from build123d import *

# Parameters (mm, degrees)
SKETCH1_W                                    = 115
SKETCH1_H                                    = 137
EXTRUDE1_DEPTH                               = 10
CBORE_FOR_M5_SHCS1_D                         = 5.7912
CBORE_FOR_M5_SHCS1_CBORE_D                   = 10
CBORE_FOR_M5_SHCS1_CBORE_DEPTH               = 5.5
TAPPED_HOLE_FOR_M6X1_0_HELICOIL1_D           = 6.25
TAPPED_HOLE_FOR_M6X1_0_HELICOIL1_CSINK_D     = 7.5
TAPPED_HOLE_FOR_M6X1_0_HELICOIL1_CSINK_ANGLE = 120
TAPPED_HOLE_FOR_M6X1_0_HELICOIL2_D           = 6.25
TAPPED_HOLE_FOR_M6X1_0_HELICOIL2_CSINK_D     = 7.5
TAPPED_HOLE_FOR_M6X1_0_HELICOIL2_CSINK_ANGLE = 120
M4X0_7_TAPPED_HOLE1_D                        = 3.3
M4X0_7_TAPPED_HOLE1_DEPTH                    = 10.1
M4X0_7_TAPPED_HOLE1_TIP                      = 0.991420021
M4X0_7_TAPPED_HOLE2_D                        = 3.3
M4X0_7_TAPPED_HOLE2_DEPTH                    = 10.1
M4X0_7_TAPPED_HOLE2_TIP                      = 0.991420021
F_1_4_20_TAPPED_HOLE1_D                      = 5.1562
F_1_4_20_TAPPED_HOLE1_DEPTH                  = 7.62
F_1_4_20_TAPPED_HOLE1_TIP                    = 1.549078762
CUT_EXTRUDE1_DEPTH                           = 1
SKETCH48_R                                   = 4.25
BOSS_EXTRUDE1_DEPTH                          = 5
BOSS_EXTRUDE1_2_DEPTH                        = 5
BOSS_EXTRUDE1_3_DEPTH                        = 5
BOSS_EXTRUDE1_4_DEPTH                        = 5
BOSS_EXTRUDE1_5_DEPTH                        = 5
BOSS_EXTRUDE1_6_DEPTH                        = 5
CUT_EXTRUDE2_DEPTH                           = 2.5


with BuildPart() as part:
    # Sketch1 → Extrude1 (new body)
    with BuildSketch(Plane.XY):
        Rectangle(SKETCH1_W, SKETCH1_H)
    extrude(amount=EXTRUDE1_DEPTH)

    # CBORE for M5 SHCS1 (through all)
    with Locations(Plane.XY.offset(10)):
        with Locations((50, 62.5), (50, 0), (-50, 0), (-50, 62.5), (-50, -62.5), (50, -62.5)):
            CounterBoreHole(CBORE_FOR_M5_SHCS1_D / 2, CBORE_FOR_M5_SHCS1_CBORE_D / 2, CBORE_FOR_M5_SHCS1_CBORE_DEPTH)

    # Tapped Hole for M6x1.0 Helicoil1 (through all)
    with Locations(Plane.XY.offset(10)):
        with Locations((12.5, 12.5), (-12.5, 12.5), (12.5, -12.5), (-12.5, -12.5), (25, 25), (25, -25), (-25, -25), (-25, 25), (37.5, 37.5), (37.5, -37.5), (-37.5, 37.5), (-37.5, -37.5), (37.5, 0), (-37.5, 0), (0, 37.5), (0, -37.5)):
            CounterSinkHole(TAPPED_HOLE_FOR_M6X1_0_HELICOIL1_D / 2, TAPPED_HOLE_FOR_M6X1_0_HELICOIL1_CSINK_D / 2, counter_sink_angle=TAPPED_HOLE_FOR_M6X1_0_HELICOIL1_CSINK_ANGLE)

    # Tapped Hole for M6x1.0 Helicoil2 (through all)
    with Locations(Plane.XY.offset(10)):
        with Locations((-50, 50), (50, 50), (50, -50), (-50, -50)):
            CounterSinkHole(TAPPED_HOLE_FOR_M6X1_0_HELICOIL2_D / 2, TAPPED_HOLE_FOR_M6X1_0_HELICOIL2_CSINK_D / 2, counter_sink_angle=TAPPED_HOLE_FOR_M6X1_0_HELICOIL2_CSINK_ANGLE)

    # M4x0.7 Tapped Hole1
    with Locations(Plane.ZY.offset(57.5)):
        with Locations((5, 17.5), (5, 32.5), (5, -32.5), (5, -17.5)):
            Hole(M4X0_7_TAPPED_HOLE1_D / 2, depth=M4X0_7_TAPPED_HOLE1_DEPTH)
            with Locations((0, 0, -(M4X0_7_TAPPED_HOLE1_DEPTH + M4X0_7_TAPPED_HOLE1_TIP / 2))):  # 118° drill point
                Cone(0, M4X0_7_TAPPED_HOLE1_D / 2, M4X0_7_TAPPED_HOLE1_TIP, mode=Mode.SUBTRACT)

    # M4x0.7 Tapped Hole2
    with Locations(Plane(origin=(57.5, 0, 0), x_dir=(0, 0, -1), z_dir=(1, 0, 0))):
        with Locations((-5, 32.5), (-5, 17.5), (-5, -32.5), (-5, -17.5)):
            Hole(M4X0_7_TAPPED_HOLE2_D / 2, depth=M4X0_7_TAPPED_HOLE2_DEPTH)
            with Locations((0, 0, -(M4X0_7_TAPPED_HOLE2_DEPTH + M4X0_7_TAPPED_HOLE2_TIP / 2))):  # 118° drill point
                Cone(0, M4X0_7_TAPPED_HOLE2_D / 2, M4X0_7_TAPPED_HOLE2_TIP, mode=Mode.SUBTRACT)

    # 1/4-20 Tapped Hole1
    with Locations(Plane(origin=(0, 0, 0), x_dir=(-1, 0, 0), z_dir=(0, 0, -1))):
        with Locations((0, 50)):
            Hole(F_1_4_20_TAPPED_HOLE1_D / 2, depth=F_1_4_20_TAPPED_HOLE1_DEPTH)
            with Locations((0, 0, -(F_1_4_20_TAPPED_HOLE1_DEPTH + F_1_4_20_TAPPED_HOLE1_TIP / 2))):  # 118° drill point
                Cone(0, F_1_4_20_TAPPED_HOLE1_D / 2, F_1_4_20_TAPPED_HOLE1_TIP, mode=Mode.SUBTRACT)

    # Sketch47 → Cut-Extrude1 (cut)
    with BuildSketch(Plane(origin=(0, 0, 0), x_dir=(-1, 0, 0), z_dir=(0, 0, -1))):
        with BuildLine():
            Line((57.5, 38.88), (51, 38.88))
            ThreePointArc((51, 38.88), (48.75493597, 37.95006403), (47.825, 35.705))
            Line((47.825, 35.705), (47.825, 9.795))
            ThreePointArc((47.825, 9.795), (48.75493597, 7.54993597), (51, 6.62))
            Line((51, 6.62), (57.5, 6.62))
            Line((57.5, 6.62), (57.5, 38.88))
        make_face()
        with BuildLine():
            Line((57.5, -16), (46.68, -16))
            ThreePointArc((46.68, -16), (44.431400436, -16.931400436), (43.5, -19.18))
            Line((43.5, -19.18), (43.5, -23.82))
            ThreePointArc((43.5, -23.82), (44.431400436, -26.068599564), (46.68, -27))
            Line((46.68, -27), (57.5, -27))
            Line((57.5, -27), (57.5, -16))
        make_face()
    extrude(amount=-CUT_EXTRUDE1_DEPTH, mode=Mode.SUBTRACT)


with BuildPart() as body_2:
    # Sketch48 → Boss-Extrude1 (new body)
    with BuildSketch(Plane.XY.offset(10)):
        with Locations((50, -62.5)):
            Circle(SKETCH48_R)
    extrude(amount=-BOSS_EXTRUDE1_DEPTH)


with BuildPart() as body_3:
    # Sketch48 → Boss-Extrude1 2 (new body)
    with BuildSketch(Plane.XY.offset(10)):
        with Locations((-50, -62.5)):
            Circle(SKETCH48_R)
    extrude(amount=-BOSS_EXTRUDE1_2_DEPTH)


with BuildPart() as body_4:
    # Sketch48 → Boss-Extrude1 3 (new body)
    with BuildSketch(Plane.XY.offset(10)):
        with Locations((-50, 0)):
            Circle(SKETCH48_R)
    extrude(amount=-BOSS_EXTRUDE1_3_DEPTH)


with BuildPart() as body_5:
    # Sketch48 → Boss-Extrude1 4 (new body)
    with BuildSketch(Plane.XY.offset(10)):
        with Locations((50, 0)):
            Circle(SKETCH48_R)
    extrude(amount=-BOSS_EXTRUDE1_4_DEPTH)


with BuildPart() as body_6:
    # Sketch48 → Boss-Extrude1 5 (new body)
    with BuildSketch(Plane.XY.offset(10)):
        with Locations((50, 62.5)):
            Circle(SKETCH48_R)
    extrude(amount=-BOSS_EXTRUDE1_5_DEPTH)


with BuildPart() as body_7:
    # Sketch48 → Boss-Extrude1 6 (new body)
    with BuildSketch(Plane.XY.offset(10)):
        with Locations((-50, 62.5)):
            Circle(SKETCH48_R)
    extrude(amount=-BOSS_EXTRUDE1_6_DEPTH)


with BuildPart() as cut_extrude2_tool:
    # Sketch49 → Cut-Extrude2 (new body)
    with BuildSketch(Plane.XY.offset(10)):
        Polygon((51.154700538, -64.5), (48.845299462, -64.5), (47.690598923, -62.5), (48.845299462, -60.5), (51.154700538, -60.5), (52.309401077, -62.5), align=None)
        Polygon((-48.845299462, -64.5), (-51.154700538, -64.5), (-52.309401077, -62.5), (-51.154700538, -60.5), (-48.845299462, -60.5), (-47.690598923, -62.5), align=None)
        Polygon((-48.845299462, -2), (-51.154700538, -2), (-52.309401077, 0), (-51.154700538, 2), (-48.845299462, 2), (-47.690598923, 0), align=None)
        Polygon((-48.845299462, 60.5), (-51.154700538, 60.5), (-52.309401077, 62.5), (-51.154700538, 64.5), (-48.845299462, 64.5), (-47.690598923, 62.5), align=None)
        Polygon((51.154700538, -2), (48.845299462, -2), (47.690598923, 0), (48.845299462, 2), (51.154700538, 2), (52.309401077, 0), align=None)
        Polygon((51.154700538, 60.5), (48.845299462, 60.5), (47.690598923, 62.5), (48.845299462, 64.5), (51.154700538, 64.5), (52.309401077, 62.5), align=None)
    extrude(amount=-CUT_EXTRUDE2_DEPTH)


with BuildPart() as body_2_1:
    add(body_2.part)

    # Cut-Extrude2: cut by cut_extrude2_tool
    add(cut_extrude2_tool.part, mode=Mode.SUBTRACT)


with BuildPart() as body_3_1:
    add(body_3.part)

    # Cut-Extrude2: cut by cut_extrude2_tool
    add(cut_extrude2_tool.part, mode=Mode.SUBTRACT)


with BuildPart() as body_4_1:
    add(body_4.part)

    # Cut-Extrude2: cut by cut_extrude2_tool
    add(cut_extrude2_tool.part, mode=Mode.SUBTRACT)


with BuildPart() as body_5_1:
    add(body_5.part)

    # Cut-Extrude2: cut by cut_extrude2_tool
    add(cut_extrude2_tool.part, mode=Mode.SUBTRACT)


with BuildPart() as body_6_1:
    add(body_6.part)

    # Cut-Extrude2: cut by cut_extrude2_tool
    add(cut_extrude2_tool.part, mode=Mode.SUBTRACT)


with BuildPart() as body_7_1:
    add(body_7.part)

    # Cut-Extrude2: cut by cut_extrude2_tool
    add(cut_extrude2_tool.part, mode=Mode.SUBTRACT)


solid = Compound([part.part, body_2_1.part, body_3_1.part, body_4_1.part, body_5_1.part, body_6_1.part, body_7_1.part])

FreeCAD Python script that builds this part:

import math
import FreeCAD as App
import Part
import Sketcher
Q = App.Units.Quantity


def add_polygon(sketch, points):
    """Adds a closed chain of lines whose ends are joined by coincident constraints."""
    first, n = sketch.GeometryCount, len(points)
    for a, b in zip(points, points[1:] + points[:1]):
        sketch.addGeometry(Part.LineSegment(App.Vector(*a, 0), App.Vector(*b, 0)), False)
    for i in range(n):
        sketch.addConstraint(Sketcher.Constraint("Coincident", first + i, 2, first + (i + 1) % n, 1))

doc = App.newDocument("Part")
body = doc.addObject("PartDesign::Body", "Body")

# Sketch on XY plane
sketch1 = body.newObject("Sketcher::SketchObject", "Sketch")
sketch1.AttachmentSupport = (doc.getObject("XY_Plane"), [""])
sketch1.MapMode = "FlatFace"
add_polygon(sketch1, [(-57.5, 68.5), (-57.5, -68.5), (57.5, -68.5), (57.5, 68.5)])  # lines 0-3
sketch1.addConstraint([
    Sketcher.Constraint("Vertical", 0),
    Sketcher.Constraint("Horizontal", 1),
    Sketcher.Constraint("Vertical", 2),
    Sketcher.Constraint("Horizontal", 3),
    Sketcher.Constraint("Symmetric", 0, 2, 2, 2, -1, 1),
    Sketcher.Constraint("DistanceX", 1, 1, 1, 2, 115.0),
    Sketcher.Constraint("DistanceY", 0, 2, 0, 1, 137.0),
])
pad1 = body.newObject("PartDesign::Pad", "Pad")
pad1.Profile = sketch1
pad1.Length = 10

# Sketch on XY plane
sketch2 = body.newObject("Sketcher::SketchObject", "Sketch001")
sketch2.AttachmentSupport = (doc.getObject("XY_Plane"), [""])
sketch2.MapMode = "FlatFace"
sketch2.AttachmentOffset = App.Placement(App.Vector(0, 0, 10), App.Rotation())
sketch2.addGeometry([
    Part.Circle(App.Vector(50, 62.5, 0), App.Vector(0, 0, 1), 2.8956),  # 0
    Part.Circle(App.Vector(50, 0, 0), App.Vector(0, 0, 1), 2.8956),  # 1
    Part.Circle(App.Vector(-50, 0, 0), App.Vector(0, 0, 1), 2.8956),  # 2
    Part.Circle(App.Vector(-50, 62.5, 0), App.Vector(0, 0, 1), 2.8956),  # 3
    Part.Circle(App.Vector(-50, -62.5, 0), App.Vector(0, 0, 1), 2.8956),  # 4
    Part.Circle(App.Vector(50, -62.5, 0), App.Vector(0, 0, 1), 2.8956),  # 5
], False)
sketch2.addConstraint([
    Sketcher.Constraint("Equal", 0, 1),
    Sketcher.Constraint("Equal", 1, 2),
    Sketcher.Constraint("Equal", 2, 3),
    Sketcher.Constraint("Equal", 3, 4),
    Sketcher.Constraint("Equal", 4, 5),
    Sketcher.Constraint("Symmetric", 1, 3, 2, 3, -1, 1),
    Sketcher.Constraint("Symmetric", 0, 3, 4, 3, -1, 1),
    Sketcher.Constraint("Symmetric", 3, 3, 5, 3, -1, 1),
    Sketcher.Constraint("Symmetric", 0, 3, 3, 3, -2),
    Sketcher.Constraint("PointOnObject", 1, 3, -1),
    Sketcher.Constraint("Vertical", 0, 3, 1, 3),
    Sketcher.Constraint("DistanceX", -1, 1, 0, 3, 50.0),
    Sketcher.Constraint("DistanceY", 4, 3, 3, 3, 125.0),
    Sketcher.Constraint("Diameter", 0, 5.7912),
])
doc.recompute()
hole = body.newObject("PartDesign::Hole", "Hole")
hole.Profile = sketch2
hole.ThreadType = "None"
hole.Diameter = 5.7912
hole.DepthType = "ThroughAll"
hole.HoleCutType = "Counterbore"
hole.HoleCutDiameter = 10
hole.HoleCutDepth = 5.5

# Sketch on XY plane
sketch3 = body.newObject("Sketcher::SketchObject", "Sketch002")
sketch3.AttachmentSupport = (doc.getObject("XY_Plane"), [""])
sketch3.MapMode = "FlatFace"
sketch3.AttachmentOffset = App.Placement(App.Vector(0, 0, 10), App.Rotation())
sketch3.addGeometry([
    Part.Circle(App.Vector(12.5, 12.5, 0), App.Vector(0, 0, 1), 3.125),  # 0
    Part.Circle(App.Vector(-12.5, 12.5, 0), App.Vector(0, 0, 1), 3.125),  # 1
    Part.Circle(App.Vector(12.5, -12.5, 0), App.Vector(0, 0, 1), 3.125),  # 2
    Part.Circle(App.Vector(-12.5, -12.5, 0), App.Vector(0, 0, 1), 3.125),  # 3
    Part.Circle(App.Vector(25, 25, 0), App.Vector(0, 0, 1), 3.125),  # 4
    Part.Circle(App.Vector(25, -25, 0), App.Vector(0, 0, 1), 3.125),  # 5
    Part.Circle(App.Vector(-25, -25, 0), App.Vector(0, 0, 1), 3.125),  # 6
    Part.Circle(App.Vector(-25, 25, 0), App.Vector(0, 0, 1), 3.125),  # 7
    Part.Circle(App.Vector(37.5, 37.5, 0), App.Vector(0, 0, 1), 3.125),  # 8
    Part.Circle(App.Vector(37.5, -37.5, 0), App.Vector(0, 0, 1), 3.125),  # 9
    Part.Circle(App.Vector(-37.5, 37.5, 0), App.Vector(0, 0, 1), 3.125),  # 10
    Part.Circle(App.Vector(-37.5, -37.5, 0), App.Vector(0, 0, 1), 3.125),  # 11
    Part.Circle(App.Vector(37.5, 0, 0), App.Vector(0, 0, 1), 3.125),  # 12
    Part.Circle(App.Vector(-37.5, 0, 0), App.Vector(0, 0, 1), 3.125),  # 13
    Part.Circle(App.Vector(0, 37.5, 0), App.Vector(0, 0, 1), 3.125),  # 14
    Part.Circle(App.Vector(0, -37.5, 0), App.Vector(0, 0, 1), 3.125),  # 15
], False)
sketch3.addConstraint([
    Sketcher.Constraint("Equal", 0, 1),
    Sketcher.Constraint("Equal", 1, 2),
    Sketcher.Constraint("Equal", 2, 3),
    Sketcher.Constraint("Equal", 3, 4),
    Sketcher.Constraint("Equal", 4, 5),
    Sketcher.Constraint("Equal", 5, 6),
    Sketcher.Constraint("Equal", 6, 7),
    Sketcher.Constraint("Equal", 7, 8),
    Sketcher.Constraint("Equal", 8, 9),
    Sketcher.Constraint("Equal", 9, 10),
    Sketcher.Constraint("Equal", 10, 11),
    Sketcher.Constraint("Equal", 11, 12),
    Sketcher.Constraint("Equal", 12, 13),
    Sketcher.Constraint("Equal", 13, 14),
    Sketcher.Constraint("Equal", 14, 15),
    Sketcher.Constraint("Symmetric", 1, 3, 2, 3, -1, 1),
    Sketcher.Constraint("Symmetric", 0, 3, 3, 3, -1, 1),
    Sketcher.Constraint("Symmetric", 4, 3, 6, 3, -1, 1),
    Sketcher.Constraint("Symmetric", 5, 3, 7, 3, -1, 1),
    Sketcher.Constraint("Symmetric", 9, 3, 10, 3, -1, 1),
    Sketcher.Constraint("Symmetric", 8, 3, 11, 3, -1, 1),
    Sketcher.Constraint("Symmetric", 12, 3, 13, 3, -1, 1),
    Sketcher.Constraint("Symmetric", 14, 3, 15, 3, -1, 1),
    Sketcher.Constraint("Symmetric", 0, 3, 1, 3, -2),
    Sketcher.Constraint("Symmetric", 5, 3, 6, 3, -2),
    Sketcher.Constraint("Symmetric", 8, 3, 10, 3, -2),
    Sketcher.Constraint("PointOnObject", 12, 3, -1),
    Sketcher.Constraint("PointOnObject", 14, 3, -2),
    Sketcher.Constraint("Horizontal", 10, 3, 14, 3),
    Sketcher.Constraint("Vertical", 9, 3, 12, 3),
    Sketcher.Constraint("Diameter", 0, 6.25),
    Sketcher.Constraint("DistanceX", -1, 1, 4, 3, 25.0),
    Sketcher.Constraint("DistanceY", -1, 1, 4, 3, 25.0),
    Sketcher.Constraint("DistanceX", 1, 3, 0, 3, 25.0),
    Sketcher.Constraint("DistanceY", 2, 3, 0, 3, 25.0),
    Sketcher.Constraint("DistanceX", 0, 3, 8, 3, 25.0),
    Sketcher.Constraint("DistanceY", 0, 3, 8, 3, 25.0),
])
doc.recompute()
hole2 = body.newObject("PartDesign::Hole", "Hole001")
hole2.Profile = sketch3
hole2.ThreadType = "None"
hole2.Diameter = 6.25
hole2.DepthType = "ThroughAll"
hole2.HoleCutType = "Countersink"
hole2.HoleCutDiameter = 7.5
hole2.HoleCutCountersinkAngle = 120

# Sketch on XY plane
sketch4 = body.newObject("Sketcher::SketchObject", "Sketch003")
sketch4.AttachmentSupport = (doc.getObject("XY_Plane"), [""])
sketch4.MapMode = "FlatFace"
sketch4.AttachmentOffset = App.Placement(App.Vector(0, 0, 10), App.Rotation())
sketch4.addGeometry([
    Part.Circle(App.Vector(-50, 50, 0), App.Vector(0, 0, 1), 3.125),
    Part.Circle(App.Vector(50, 50, 0), App.Vector(0, 0, 1), 3.125),
    Part.Circle(App.Vector(50, -50, 0), App.Vector(0, 0, 1), 3.125),
    Part.Circle(App.Vector(-50, -50, 0), App.Vector(0, 0, 1), 3.125),
], False)
sketch4.addConstraint([
    Sketcher.Constraint("Equal", 0, 1),
    Sketcher.Constraint("Equal", 1, 2),
    Sketcher.Constraint("Equal", 2, 3),
    Sketcher.Constraint("Symmetric", 0, 3, 2, 3, -1, 1),
    Sketcher.Constraint("Symmetric", 1, 3, 3, 3, -1, 1),
    Sketcher.Constraint("Symmetric", 0, 3, 1, 3, -2),
    Sketcher.Constraint("Diameter", 0, 6.25),
    Sketcher.Constraint("DistanceX", 0, 3, -1, 1, 50.0),
    Sketcher.Constraint("DistanceY", -1, 1, 0, 3, 50.0),
])
doc.recompute()
hole3 = body.newObject("PartDesign::Hole", "Hole002")
hole3.Profile = sketch4
hole3.ThreadType = "None"
hole3.Diameter = 6.25
hole3.DepthType = "ThroughAll"
hole3.HoleCutType = "Countersink"
hole3.HoleCutDiameter = 7.5
hole3.HoleCutCountersinkAngle = 120

# Sketch on YZ plane
sketch5 = body.newObject("Sketcher::SketchObject", "Sketch004")
sketch5.AttachmentSupport = (doc.getObject("YZ_Plane"), [""])
sketch5.MapMode = "FlatFace"
sketch5.AttachmentOffset = App.Placement(App.Vector(0, 0, -57.5), App.Rotation())
sketch5.addGeometry([
    Part.Circle(App.Vector(17.5, 5, 0), App.Vector(0, 0, 1), 1.65),
    Part.Circle(App.Vector(32.5, 5, 0), App.Vector(0, 0, 1), 1.65),
    Part.Circle(App.Vector(-32.5, 5, 0), App.Vector(0, 0, 1), 1.65),
    Part.Circle(App.Vector(-17.5, 5, 0), App.Vector(0, 0, 1), 1.65),
], False)
sketch5.addConstraint([
    Sketcher.Constraint("Equal", 0, 1),
    Sketcher.Constraint("Equal", 1, 2),
    Sketcher.Constraint("Equal", 2, 3),
    Sketcher.Constraint("Symmetric", 1, 3, 2, 3, -2),
    Sketcher.Constraint("Symmetric", 0, 3, 3, 3, -2),
    Sketcher.Constraint("Horizontal", 0, 3, 1, 3),
    Sketcher.Constraint("Diameter", 0, 3.3),
    Sketcher.Constraint("DistanceY", -1, 1, 0, 3, 5.0),
    Sketcher.Constraint("DistanceX", 0, 3, 1, 3, 15.0),
    Sketcher.Constraint("DistanceX", 2, 3, 0, 3, 50.0),
])
doc.recompute()
hole4 = body.newObject("PartDesign::Hole", "Hole003")
hole4.Profile = sketch5
hole4.ThreadType = "None"
hole4.Diameter = 3.3
hole4.DepthType = "Dimension"
hole4.Depth = 10.1
hole4.DrillPoint = "Angled"
hole4.DrillPointAngle = 118
hole4.Reversed = True

# Sketch on YZ plane
sketch6 = body.newObject("Sketcher::SketchObject", "Sketch005")
sketch6.AttachmentSupport = (doc.getObject("YZ_Plane"), [""])
sketch6.MapMode = "FlatFace"
sketch6.AttachmentOffset = App.Placement(App.Vector(0, 0, 57.5), App.Rotation())
sketch6.addGeometry([
    Part.Circle(App.Vector(32.5, 5, 0), App.Vector(0, 0, 1), 1.65),
    Part.Circle(App.Vector(17.5, 5, 0), App.Vector(0, 0, 1), 1.65),
    Part.Circle(App.Vector(-32.5, 5, 0), App.Vector(0, 0, 1), 1.65),
    Part.Circle(App.Vector(-17.5, 5, 0), App.Vector(0, 0, 1), 1.65),
], False)
sketch6.addConstraint([
    Sketcher.Constraint("Equal", 0, 1),
    Sketcher.Constraint("Equal", 1, 2),
    Sketcher.Constraint("Equal", 2, 3),
    Sketcher.Constraint("Symmetric", 0, 3, 2, 3, -2),
    Sketcher.Constraint("Symmetric", 1, 3, 3, 3, -2),
    Sketcher.Constraint("Horizontal", 0, 3, 1, 3),
    Sketcher.Constraint("Diameter", 0, 3.3),
    Sketcher.Constraint("DistanceY", -1, 1, 0, 3, 5.0),
    Sketcher.Constraint("DistanceX", 1, 3, 0, 3, 15.0),
    Sketcher.Constraint("DistanceX", 2, 3, 1, 3, 50.0),
])
doc.recompute()
hole5 = body.newObject("PartDesign::Hole", "Hole004")
hole5.Profile = sketch6
hole5.ThreadType = "None"
hole5.Diameter = 3.3
hole5.DepthType = "Dimension"
hole5.Depth = 10.1
hole5.DrillPoint = "Angled"
hole5.DrillPointAngle = 118

# Sketch on XY plane
sketch7 = body.newObject("Sketcher::SketchObject", "Sketch006")
sketch7.AttachmentSupport = (doc.getObject("XY_Plane"), [""])
sketch7.MapMode = "FlatFace"
sketch7.addGeometry(Part.Circle(App.Vector(0, 50, 0), App.Vector(0, 0, 1), 2.5781), False)
sketch7.addConstraint([
    Sketcher.Constraint("PointOnObject", 0, 3, -2),
    Sketcher.Constraint("DistanceY", -1, 1, 0, 3, 50.0),
    Sketcher.Constraint("Diameter", 0, 5.1562),
])
doc.recompute()
hole6 = body.newObject("PartDesign::Hole", "Hole005")
hole6.Profile = sketch7
hole6.ThreadType = "None"
hole6.Diameter = 5.1562
hole6.DepthType = "Dimension"
hole6.Depth = 7.62
hole6.DrillPoint = "Angled"
hole6.DrillPointAngle = 118
hole6.Reversed = True

# Sketch on XY plane
sketch8 = body.newObject("Sketcher::SketchObject", "Sketch007")
sketch8.AttachmentSupport = (doc.getObject("XY_Plane"), [""])
sketch8.MapMode = "FlatFace"
sketch8.addGeometry([
    Part.LineSegment(App.Vector(-57.5, 38.88, 0), App.Vector(-51, 38.88, 0)),  # 0
    Part.ArcOfCircle(Part.Circle(App.Vector(-51, 35.705, 0), App.Vector(0, 0, 1), 3.175), math.radians(0), math.radians(90)),  # 1
    Part.LineSegment(App.Vector(-47.825, 35.705, 0), App.Vector(-47.825, 9.795, 0)),  # 2
    Part.ArcOfCircle(Part.Circle(App.Vector(-51, 9.795, 0), App.Vector(0, 0, 1), 3.175), math.radians(-90), math.radians(0)),  # 3
    Part.LineSegment(App.Vector(-51, 6.62, 0), App.Vector(-57.5, 6.62, 0)),  # 4
    Part.LineSegment(App.Vector(-57.5, 6.62, 0), App.Vector(-57.5, 38.88, 0)),  # 5
    Part.LineSegment(App.Vector(-57.5, -16, 0), App.Vector(-46.68, -16, 0)),  # 6
    Part.ArcOfCircle(Part.Circle(App.Vector(-46.68, -19.18, 0), App.Vector(0, 0, 1), 3.18), math.radians(0), math.radians(90)),  # 7
    Part.LineSegment(App.Vector(-43.5, -19.18, 0), App.Vector(-43.5, -23.82, 0)),  # 8
    Part.ArcOfCircle(Part.Circle(App.Vector(-46.68, -23.82, 0), App.Vector(0, 0, 1), 3.18), math.radians(-90), math.radians(0)),  # 9
    Part.LineSegment(App.Vector(-46.68, -27, 0), App.Vector(-57.5, -27, 0)),  # 10
    Part.LineSegment(App.Vector(-57.5, -27, 0), App.Vector(-57.5, -16, 0)),  # 11
], False)
sketch8.addConstraint([
    Sketcher.Constraint("Tangent", 0, 2, 1, 2),
    Sketcher.Constraint("Tangent", 1, 1, 2, 1),
    Sketcher.Constraint("Tangent", 2, 2, 3, 2),
    Sketcher.Constraint("Tangent", 3, 1, 4, 1),
    Sketcher.Constraint("Coincident", 4, 2, 5, 1),
    Sketcher.Constraint("Coincident", 5, 2, 0, 1),
    Sketcher.Constraint("Tangent", 6, 2, 7, 2),
    Sketcher.Constraint("Tangent", 7, 1, 8, 1),
    Sketcher.Constraint("Tangent", 8, 2, 9, 2),
    Sketcher.Constraint("Tangent", 9, 1, 10, 1),
    Sketcher.Constraint("Coincident", 10, 2, 11, 1),
    Sketcher.Constraint("Coincident", 11, 2, 6, 1),
    Sketcher.Constraint("Horizontal", 0),
    Sketcher.Constraint("Vertical", 2),
    Sketcher.Constraint("Horizontal", 4),
    Sketcher.Constraint("Vertical", 5),
    Sketcher.Constraint("Horizontal", 6),
    Sketcher.Constraint("Vertical", 8),
    Sketcher.Constraint("Horizontal", 10),
    Sketcher.Constraint("Vertical", 11),
    Sketcher.Constraint("Equal", 1, 3),
    Sketcher.Constraint("Equal", 7, 9),
    Sketcher.Constraint("Vertical", 5, 2, 10, 2),
    Sketcher.Constraint("DistanceY", 11, 1, 11, 2, 11.0),
    Sketcher.Constraint("Radius", 7, 3.18),
    Sketcher.Constraint("DistanceX", 0, 1, 0, 2, 6.5),
    Sketcher.Constraint("DistanceX", 1, 3, -1, 1, 51.0),
    Sketcher.Constraint("DistanceY", 6, 2, -1, 1, 16.0),
    Sketcher.Constraint("Radius", 1, 3.175),
    Sketcher.Constraint("DistanceX", 10, 2, 8, 2, 14.0),
    Sketcher.Constraint("DistanceY", 2, 2, 2, 1, 25.91),
    Sketcher.Constraint("DistanceY", 9, 3, 0, 2, 62.7),
])
pocket1 = body.newObject("PartDesign::Pocket", "Pocket")
pocket1.Profile = sketch8
pocket1.Length = 1
pocket1.Reversed = True
body2 = doc.addObject("PartDesign::Body", "Body001")

# Sketch on XY plane
sketch9 = body2.newObject("Sketcher::SketchObject", "Sketch008")
sketch9.AttachmentSupport = (doc.getObject("XY_Plane001"), [""])
sketch9.MapMode = "FlatFace"
sketch9.AttachmentOffset = App.Placement(App.Vector(0, 0, 10), App.Rotation())
sketch9.addGeometry(Part.Circle(App.Vector(50, -62.5, 0), App.Vector(0, 0, 1), 4.25), False)
sketch9.addConstraint([
    Sketcher.Constraint("Diameter", 0, 8.5),
    Sketcher.Constraint("DistanceX", -1, 1, 0, 3, 50.0),
    Sketcher.Constraint("DistanceY", 0, 3, -1, 1, 62.5),
])
pad2 = body2.newObject("PartDesign::Pad", "Pad001")
pad2.Profile = sketch9
pad2.Length = 5
pad2.Reversed = True
body3 = doc.addObject("PartDesign::Body", "Body002")

# Sketch on XY plane
sketch10 = body3.newObject("Sketcher::SketchObject", "Sketch009")
sketch10.AttachmentSupport = (doc.getObject("XY_Plane002"), [""])
sketch10.MapMode = "FlatFace"
sketch10.AttachmentOffset = App.Placement(App.Vector(0, 0, 10), App.Rotation())
sketch10.addGeometry(Part.Circle(App.Vector(-50, -62.5, 0), App.Vector(0, 0, 1), 4.25), False)
sketch10.addConstraint([
    Sketcher.Constraint("Diameter", 0, 8.5),
    Sketcher.Constraint("DistanceX", 0, 3, -1, 1, 50.0),
    Sketcher.Constraint("DistanceY", 0, 3, -1, 1, 62.5),
])
pad3 = body3.newObject("PartDesign::Pad", "Pad002")
pad3.Profile = sketch10
pad3.Length = 5
pad3.Reversed = True
body4 = doc.addObject("PartDesign::Body", "Body003")

# Sketch on XY plane
sketch11 = body4.newObject("Sketcher::SketchObject", "Sketch010")
sketch11.AttachmentSupport = (doc.getObject("XY_Plane003"), [""])
sketch11.MapMode = "FlatFace"
sketch11.AttachmentOffset = App.Placement(App.Vector(0, 0, 10), App.Rotation())
sketch11.addGeometry(Part.Circle(App.Vector(-50, 0, 0), App.Vector(0, 0, 1), 4.25), False)
sketch11.addConstraint([
    Sketcher.Constraint("PointOnObject", 0, 3, -1),
    Sketcher.Constraint("Diameter", 0, 8.5),
    Sketcher.Constraint("DistanceX", 0, 3, -1, 1, 50.0),
])
pad4 = body4.newObject("PartDesign::Pad", "Pad003")
pad4.Profile = sketch11
pad4.Length = 5
pad4.Reversed = True
body5 = doc.addObject("PartDesign::Body", "Body004")

# Sketch on XY plane
sketch12 = body5.newObject("Sketcher::SketchObject", "Sketch011")
sketch12.AttachmentSupport = (doc.getObject("XY_Plane004"), [""])
sketch12.MapMode = "FlatFace"
sketch12.AttachmentOffset = App.Placement(App.Vector(0, 0, 10), App.Rotation())
sketch12.addGeometry(Part.Circle(App.Vector(50, 0, 0), App.Vector(0, 0, 1), 4.25), False)
sketch12.addConstraint([
    Sketcher.Constraint("PointOnObject", 0, 3, -1),
    Sketcher.Constraint("Diameter", 0, 8.5),
    Sketcher.Constraint("DistanceX", -1, 1, 0, 3, 50.0),
])
pad5 = body5.newObject("PartDesign::Pad", "Pad004")
pad5.Profile = sketch12
pad5.Length = 5
pad5.Reversed = True
body6 = doc.addObject("PartDesign::Body", "Body005")

# Sketch on XY plane
sketch13 = body6.newObject("Sketcher::SketchObject", "Sketch012")
sketch13.AttachmentSupport = (doc.getObject("XY_Plane005"), [""])
sketch13.MapMode = "FlatFace"
sketch13.AttachmentOffset = App.Placement(App.Vector(0, 0, 10), App.Rotation())
sketch13.addGeometry(Part.Circle(App.Vector(50, 62.5, 0), App.Vector(0, 0, 1), 4.25), False)
sketch13.addConstraint([
    Sketcher.Constraint("Diameter", 0, 8.5),
    Sketcher.Constraint("DistanceX", -1, 1, 0, 3, 50.0),
    Sketcher.Constraint("DistanceY", -1, 1, 0, 3, 62.5),
])
pad6 = body6.newObject("PartDesign::Pad", "Pad005")
pad6.Profile = sketch13
pad6.Length = 5
pad6.Reversed = True
body7 = doc.addObject("PartDesign::Body", "Body006")

# Sketch on XY plane
sketch14 = body7.newObject("Sketcher::SketchObject", "Sketch013")
sketch14.AttachmentSupport = (doc.getObject("XY_Plane006"), [""])
sketch14.MapMode = "FlatFace"
sketch14.AttachmentOffset = App.Placement(App.Vector(0, 0, 10), App.Rotation())
sketch14.addGeometry(Part.Circle(App.Vector(-50, 62.5, 0), App.Vector(0, 0, 1), 4.25), False)
sketch14.addConstraint([
    Sketcher.Constraint("Diameter", 0, 8.5),
    Sketcher.Constraint("DistanceX", 0, 3, -1, 1, 50.0),
    Sketcher.Constraint("DistanceY", -1, 1, 0, 3, 62.5),
])
pad7 = body7.newObject("PartDesign::Pad", "Pad006")
pad7.Profile = sketch14
pad7.Length = 5
pad7.Reversed = True
body8 = doc.addObject("PartDesign::Body", "Body007")
body8.AllowCompound = True

# Sketch on XY plane
sketch15 = body8.newObject("Sketcher::SketchObject", "Sketch014")
sketch15.AttachmentSupport = (doc.getObject("XY_Plane007"), [""])
sketch15.MapMode = "FlatFace"
sketch15.AttachmentOffset = App.Placement(App.Vector(0, 0, 10), App.Rotation())
add_polygon(sketch15, [(48.845299, -64.5), (51.154701, -64.5), (52.309401, -62.5), (51.154701, -60.5), (48.845299, -60.5), (47.690599, -62.5)])  # lines 0-5
add_polygon(sketch15, [(-51.154701, -64.5), (-48.845299, -64.5), (-47.690599, -62.5), (-48.845299, -60.5), (-51.154701, -60.5), (-52.309401, -62.5)])  # lines 6-11
add_polygon(sketch15, [(-51.154701, -2), (-48.845299, -2), (-47.690599, 0), (-48.845299, 2), (-51.154701, 2), (-52.309401, 0)])  # lines 12-17
add_polygon(sketch15, [(-51.154701, 60.5), (-48.845299, 60.5), (-47.690599, 62.5), (-48.845299, 64.5), (-51.154701, 64.5), (-52.309401, 62.5)])  # lines 18-23
add_polygon(sketch15, [(48.845299, -2), (51.154701, -2), (52.309401, 0), (51.154701, 2), (48.845299, 2), (47.690599, 0)])  # lines 24-29
add_polygon(sketch15, [(48.845299, 60.5), (51.154701, 60.5), (52.309401, 62.5), (51.154701, 64.5), (48.845299, 64.5), (47.690599, 62.5)])  # lines 30-35
sketch15.addConstraint([
    Sketcher.Constraint("Horizontal", 0),
    Sketcher.Constraint("Horizontal", 3),
    Sketcher.Constraint("Horizontal", 6),
    Sketcher.Constraint("Horizontal", 9),
    Sketcher.Constraint("Horizontal", 12),
    Sketcher.Constraint("Horizontal", 15),
    Sketcher.Constraint("Horizontal", 18),
    Sketcher.Constraint("Horizontal", 21),
    Sketcher.Constraint("Horizontal", 24),
    Sketcher.Constraint("Horizontal", 27),
    Sketcher.Constraint("Horizontal", 30),
    Sketcher.Constraint("Horizontal", 33),
    Sketcher.Constraint("Symmetric", 3, 2, 18, 2, -1, 1),
    Sketcher.Constraint("Symmetric", 4, 2, 19, 2, -1, 1),
    Sketcher.Constraint("Symmetric", 5, 2, 20, 2, -1, 1),
    Sketcher.Constraint("Symmetric", 1, 2, 22, 2, -1, 1),
    Sketcher.Constraint("Symmetric", 15, 2, 24, 2, -1, 1),
    Sketcher.Constraint("Symmetric", 16, 2, 25, 2, -1, 1),
    Sketcher.Constraint("Symmetric", 17, 2, 26, 2, -1, 1),
    Sketcher.Constraint("Symmetric", 13, 2, 28, 2, -1, 1),
    Sketcher.Constraint("Symmetric", 9, 2, 30, 2, -1, 1),
    Sketcher.Constraint("Symmetric", 10, 2, 31, 2, -1, 1),
    Sketcher.Constraint("Symmetric", 11, 2, 32, 2, -1, 1),
    Sketcher.Constraint("Symmetric", 7, 2, 34, 2, -1, 1),
    Sketcher.Constraint("Symmetric", 5, 2, 6, 2, -2),
    Sketcher.Constraint("Symmetric", 4, 2, 7, 2, -2),
    Sketcher.Constraint("Symmetric", 3, 2, 8, 2, -2),
    Sketcher.Constraint("Symmetric", 1, 2, 10, 2, -2),
    Sketcher.Constraint("Symmetric", 17, 2, 24, 2, -2),
    Sketcher.Constraint("PointOnObject", 13, 2, -1),
    Sketcher.Constraint("PointOnObject", 16, 2, -1),
    Sketcher.Constraint("Parallel", 1, 4),
    Sketcher.Constraint("Parallel", 2, 5),
    Sketcher.Constraint("Parallel", 4, 7),
    Sketcher.Constraint("Parallel", 7, 10),
    Sketcher.Constraint("Parallel", 8, 11),
    Sketcher.Constraint("Parallel", 10, 13),
    Sketcher.Constraint("Parallel", 11, 14),
    Sketcher.Constraint("Parallel", 13, 16),
    Sketcher.Constraint("Parallel", 19, 22),
    Sketcher.Constraint("Parallel", 20, 23),
    Sketcher.Constraint("Parallel", 25, 28),
    Sketcher.Constraint("Parallel", 26, 29),
    Sketcher.Constraint("Parallel", 31, 34),
    Sketcher.Constraint("Parallel", 32, 35),
    Sketcher.Constraint("Horizontal", 1, 2, 4, 2),
    Sketcher.Constraint("Vertical", 0, 2, 2, 2),
    Sketcher.Constraint("Vertical", 8, 2, 12, 2),
    Sketcher.Constraint("Vertical", 7, 2, 13, 2),
    Sketcher.Constraint("Vertical", 11, 2, 15, 2),
    Sketcher.Constraint("Angle", 1, Q("60 deg")),
    Sketcher.Constraint("DistanceY", 12, 2, -1, 1, 2.0),
    Sketcher.Constraint("DistanceX", 6, 2, 0, 2, 100.0),
    Sketcher.Constraint("DistanceY", 0, 2, -1, 1, 64.5),
    Sketcher.Constraint("DistanceX", 0, 1, 0, 2, 2.309401),
])
pad8 = body8.newObject("PartDesign::Pad", "Pad007")
pad8.Profile = sketch15
pad8.Length = 2.5
pad8.Reversed = True
doc.recompute()

body9 = doc.addObject("PartDesign::Body", "Body008")
body9.BaseFeature = body8
boolean = body2.newObject("PartDesign::Boolean", "Boolean")
boolean.Type = "Cut"
boolean.addObjects([body9])
doc.recompute()

body10 = doc.addObject("PartDesign::Body", "Body009")
body10.BaseFeature = body8
boolean2 = body3.newObject("PartDesign::Boolean", "Boolean001")
boolean2.Type = "Cut"
boolean2.addObjects([body10])
doc.recompute()

body11 = doc.addObject("PartDesign::Body", "Body010")
body11.BaseFeature = body8
boolean3 = body4.newObject("PartDesign::Boolean", "Boolean002")
boolean3.Type = "Cut"
boolean3.addObjects([body11])
doc.recompute()

body12 = doc.addObject("PartDesign::Body", "Body011")
body12.BaseFeature = body8
boolean4 = body5.newObject("PartDesign::Boolean", "Boolean003")
boolean4.Type = "Cut"
boolean4.addObjects([body12])
doc.recompute()

body13 = doc.addObject("PartDesign::Body", "Body012")
body13.BaseFeature = body8
boolean5 = body6.newObject("PartDesign::Boolean", "Boolean004")
boolean5.Type = "Cut"
boolean5.addObjects([body13])
doc.recompute()

boolean6 = body7.newObject("PartDesign::Boolean", "Boolean005")
boolean6.Type = "Cut"
boolean6.addObjects([body8])

doc.recompute()
